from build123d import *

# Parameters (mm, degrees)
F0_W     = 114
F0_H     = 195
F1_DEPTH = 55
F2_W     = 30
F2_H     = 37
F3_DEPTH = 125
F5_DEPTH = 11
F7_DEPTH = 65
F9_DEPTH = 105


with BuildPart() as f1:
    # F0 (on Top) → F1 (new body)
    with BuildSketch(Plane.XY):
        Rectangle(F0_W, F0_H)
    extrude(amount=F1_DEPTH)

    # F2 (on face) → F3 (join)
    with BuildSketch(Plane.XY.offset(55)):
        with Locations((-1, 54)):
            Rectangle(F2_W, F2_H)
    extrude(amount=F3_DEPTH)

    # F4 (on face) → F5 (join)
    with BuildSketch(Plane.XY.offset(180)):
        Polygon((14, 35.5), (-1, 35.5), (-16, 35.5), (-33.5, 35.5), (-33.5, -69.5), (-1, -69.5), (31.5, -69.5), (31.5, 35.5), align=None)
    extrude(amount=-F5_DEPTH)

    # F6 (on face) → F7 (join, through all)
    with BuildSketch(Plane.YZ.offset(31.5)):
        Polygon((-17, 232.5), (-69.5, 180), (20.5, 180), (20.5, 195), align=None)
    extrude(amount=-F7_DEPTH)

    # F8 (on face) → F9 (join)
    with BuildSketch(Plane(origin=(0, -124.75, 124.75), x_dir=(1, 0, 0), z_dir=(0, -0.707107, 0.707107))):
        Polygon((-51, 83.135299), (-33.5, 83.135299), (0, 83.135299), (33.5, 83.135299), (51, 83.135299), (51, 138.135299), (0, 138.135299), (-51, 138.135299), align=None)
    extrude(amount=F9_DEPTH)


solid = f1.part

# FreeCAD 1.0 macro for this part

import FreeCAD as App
import Part
import Sketcher
Q = App.Units.Quantity


def add_polygon(sketch, points):
    """Adds a closed chain of lines whose ends are joined by coincident constraints."""
    first, n = sketch.GeometryCount, len(points)
    for a, b in zip(points, points[1:] + points[:1]):
        sketch.addGeometry(Part.LineSegment(App.Vector(*a, 0), App.Vector(*b, 0)), False)
    for i in range(n):
        sketch.addConstraint(Sketcher.Constraint("Coincident", first + i, 2, first + (i + 1) % n, 1))

doc = App.newDocument("Part")
body = doc.addObject("PartDesign::Body", "Body")

# Sketch on XY plane
sketch1 = doc.addObject("Sketcher::SketchObject", "Sketch")
body.addObject(sketch1)
sketch1.AttachmentSupport = (doc.XY_Plane, [""])
sketch1.MapMode = "FlatFace"
add_polygon(sketch1, [(-57, 98), (-57, -98), (57, -98), (57, 98)])  # lines 0-3
sketch1.addConstraint([
    Sketcher.Constraint("Vertical", 0),
    Sketcher.Constraint("Horizontal", 1),
    Sketcher.Constraint("Vertical", 2),
    Sketcher.Constraint("Horizontal", 3),
    Sketcher.Constraint("Symmetric", 0, 2, 2, 2, -1, 1),
    Sketcher.Constraint("DistanceX", 1, 1, 1, 2, 114.0),
    Sketcher.Constraint("DistanceY", 0, 2, 0, 1, 195.0),
])
pad1 = doc.addObject("PartDesign::Pad", "Pad")
body.addObject(pad1)
pad1.Profile = sketch1
pad1.Length = 55

# Sketch on XY plane
sketch2 = doc.addObject("Sketcher::SketchObject", "Sketch001")
body.addObject(sketch2)
sketch2.AttachmentSupport = (doc.XY_Plane, [""])
sketch2.MapMode = "FlatFace"
sketch2.AttachmentOffset = App.Placement(App.Vector(0, 0, 55), App.Rotation())
add_polygon(sketch2, [(-16, 72), (-16, 36), (14, 36), (14, 72)])  # lines 0-3
sketch2.addConstraint([
    Sketcher.Constraint("Vertical", 0),
    Sketcher.Constraint("Horizontal", 1),
    Sketcher.Constraint("Vertical", 2),
    Sketcher.Constraint("Horizontal", 3),
    Sketcher.Constraint("DistanceX", 1, 1, 1, 2, 30.0),
    Sketcher.Constraint("DistanceY", 0, 2, 0, 1, 37.0),
    Sketcher.Constraint("DistanceX", 0, 2, -1, 1, 16.0),
    Sketcher.Constraint("DistanceY", -1, 1, 0, 2, 35.5),
])
pad2 = doc.addObject("PartDesign::Pad", "Pad001")
body.addObject(pad2)
pad2.Profile = sketch2
pad2.Length = 125

# Sketch on XY plane
sketch3 = doc.addObject("Sketcher::SketchObject", "Sketch002")
body.addObject(sketch3)
sketch3.AttachmentSupport = (doc.XY_Plane, [""])
sketch3.MapMode = "FlatFace"
sketch3.AttachmentOffset = App.Placement(App.Vector(0, 0, 180), App.Rotation())
add_polygon(sketch3, [(-34, 36), (-34, -70), (32, -70), (32, 36)])  # lines 0-3
sketch3.addConstraint([
    Sketcher.Constraint("Vertical", 0),
    Sketcher.Constraint("Horizontal", 1),
    Sketcher.Constraint("Vertical", 2),
    Sketcher.Constraint("Horizontal", 3),
    Sketcher.Constraint("DistanceX", 1, 1, 1, 2, 65.0),
    Sketcher.Constraint("DistanceY", 0, 2, 0, 1, 105.0),
    Sketcher.Constraint("DistanceX", 0, 2, -1, 1, 33.5),
    Sketcher.Constraint("DistanceY", 0, 2, -1, 1, 69.5),
])
pad3 = doc.addObject("PartDesign::Pad", "Pad002")
body.addObject(pad3)
pad3.Profile = sketch3
pad3.Length = 11
pad3.Reversed = True

# Sketch on YZ plane
sketch4 = doc.addObject("Sketcher::SketchObject", "Sketch003")
body.addObject(sketch4)
sketch4.AttachmentSupport = (doc.YZ_Plane, [""])
sketch4.MapMode = "FlatFace"
sketch4.AttachmentOffset = App.Placement(App.Vector(0, 0, 31.5), App.Rotation())
add_polygon(sketch4, [(-17, 232), (-70, 180), (20, 180), (20, 195)])  # lines 0-3
sketch4.addConstraint([
    Sketcher.Constraint("Horizontal", 1),
    Sketcher.Constraint("Vertical", 2),
    Sketcher.Constraint("Perpendicular", 0, 3),
    Sketcher.Constraint("DistanceX", 1, 1, 1, 2, 90.0),
    Sketcher.Constraint("DistanceY", 2, 1, 2, 2, 15.0),
    Sketcher.Constraint("Angle", 0, Q("-135 deg")),
    Sketcher.Constraint("DistanceY", -1, 1, 0, 2, 180.0),
    Sketcher.Constraint("DistanceX", 3, 2, -1, 1, 17.0),
])
pad4 = doc.addObject("PartDesign::Pad", "Pad003")
body.addObject(pad4)
pad4.Profile = sketch4
pad4.Length = 65
pad4.Reversed = True

# Sketch on an angled plane
sketch5 = doc.addObject("Sketcher::SketchObject", "Sketch004")
body.addObject(sketch5)
sketch5.Placement = App.Placement(App.Vector(0, -124.75, 124.75), App.Rotation(App.Vector(1, 0, 0), App.Vector(0, 0.707106781, 0.707106781), App.Vector(0, -0.707106781, 0.707106781), "ZXY"))
add_polygon(sketch5, [(-51, 83), (51, 83), (51, 138), (-51, 138)])  # lines 0-3
sketch5.addConstraint([
    Sketcher.Constraint("Horizontal", 0),
    Sketcher.Constraint("Vertical", 1),
    Sketcher.Constraint("Horizontal", 2),
    Sketcher.Constraint("Vertical", 3),
    Sketcher.Constraint("DistanceX", 0, 1, 0, 2, 102.0),
    Sketcher.Constraint("DistanceY", 1, 1, 1, 2, 55.0),
    Sketcher.Constraint("DistanceX", -1, 1, 0, 2, 51.0),
    Sketcher.Constraint("DistanceY", -1, 1, 0, 2, 83.135299),
])
pad5 = doc.addObject("PartDesign::Pad", "Pad004")
body.addObject(pad5)
pad5.Profile = sketch5
pad5.Length = 105

doc.recompute()
